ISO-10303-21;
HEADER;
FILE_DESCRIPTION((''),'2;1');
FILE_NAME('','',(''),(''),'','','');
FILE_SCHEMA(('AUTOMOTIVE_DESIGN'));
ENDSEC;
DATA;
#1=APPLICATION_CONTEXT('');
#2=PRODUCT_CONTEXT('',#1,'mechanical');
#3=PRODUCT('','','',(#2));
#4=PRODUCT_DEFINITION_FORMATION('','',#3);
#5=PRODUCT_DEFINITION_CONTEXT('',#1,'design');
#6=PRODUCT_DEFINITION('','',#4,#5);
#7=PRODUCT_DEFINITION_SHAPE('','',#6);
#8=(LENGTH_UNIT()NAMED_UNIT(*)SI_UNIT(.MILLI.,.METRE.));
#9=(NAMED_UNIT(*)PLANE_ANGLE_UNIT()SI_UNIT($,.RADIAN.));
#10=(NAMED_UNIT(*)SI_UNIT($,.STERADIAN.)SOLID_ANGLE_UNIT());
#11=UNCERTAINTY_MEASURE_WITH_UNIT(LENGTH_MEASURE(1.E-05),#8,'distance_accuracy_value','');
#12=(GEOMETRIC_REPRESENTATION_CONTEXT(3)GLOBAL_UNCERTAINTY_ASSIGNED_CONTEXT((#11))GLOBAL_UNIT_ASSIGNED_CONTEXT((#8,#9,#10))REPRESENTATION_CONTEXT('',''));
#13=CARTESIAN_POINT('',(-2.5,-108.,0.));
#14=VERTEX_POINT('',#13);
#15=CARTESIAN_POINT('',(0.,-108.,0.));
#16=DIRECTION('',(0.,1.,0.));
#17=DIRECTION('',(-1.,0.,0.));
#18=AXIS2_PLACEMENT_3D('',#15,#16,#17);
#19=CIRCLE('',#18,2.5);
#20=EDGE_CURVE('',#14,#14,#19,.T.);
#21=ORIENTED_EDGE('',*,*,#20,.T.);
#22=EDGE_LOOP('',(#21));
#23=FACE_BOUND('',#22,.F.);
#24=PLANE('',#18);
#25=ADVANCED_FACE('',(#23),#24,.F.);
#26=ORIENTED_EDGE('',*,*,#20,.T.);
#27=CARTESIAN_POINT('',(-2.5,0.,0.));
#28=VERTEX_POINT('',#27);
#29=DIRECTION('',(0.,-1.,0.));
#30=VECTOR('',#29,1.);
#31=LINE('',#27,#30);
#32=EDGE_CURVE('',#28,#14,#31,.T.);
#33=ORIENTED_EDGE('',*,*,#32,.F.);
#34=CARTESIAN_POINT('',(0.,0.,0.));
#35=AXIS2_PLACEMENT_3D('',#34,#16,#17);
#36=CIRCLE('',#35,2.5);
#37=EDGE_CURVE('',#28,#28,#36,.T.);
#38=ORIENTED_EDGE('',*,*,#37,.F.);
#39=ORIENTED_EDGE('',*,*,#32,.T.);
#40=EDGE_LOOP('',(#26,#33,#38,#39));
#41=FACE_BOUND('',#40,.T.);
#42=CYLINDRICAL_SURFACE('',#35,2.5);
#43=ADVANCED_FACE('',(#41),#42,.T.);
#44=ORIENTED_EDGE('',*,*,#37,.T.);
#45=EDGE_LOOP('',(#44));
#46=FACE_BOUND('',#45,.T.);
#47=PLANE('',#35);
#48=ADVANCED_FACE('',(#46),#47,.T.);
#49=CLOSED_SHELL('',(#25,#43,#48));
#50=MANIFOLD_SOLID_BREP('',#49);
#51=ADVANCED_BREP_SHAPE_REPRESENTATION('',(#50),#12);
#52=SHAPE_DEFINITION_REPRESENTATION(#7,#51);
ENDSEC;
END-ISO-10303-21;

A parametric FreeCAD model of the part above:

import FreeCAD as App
import Part
import Sketcher

doc = App.newDocument("Part")
body = doc.addObject("PartDesign::Body", "Body")

# Sketch on XZ plane
sketch1 = body.newObject("Sketcher::SketchObject", "Sketch")
sketch1.AttachmentSupport = (doc.getObject("XZ_Plane"), [""])
sketch1.MapMode = "FlatFace"
sketch1.addGeometry(Part.Circle(App.Vector(0, 0, 0), App.Vector(0, 0, 1), 2.5), False)
sketch1.addConstraint([
    Sketcher.Constraint("Coincident", 0, 3, -1, 1),
    Sketcher.Constraint("Diameter", 0, 5.0),
])
pad1 = body.newObject("PartDesign::Pad", "Pad")
pad1.Profile = sketch1
pad1.Length = 108

doc.recompute()
